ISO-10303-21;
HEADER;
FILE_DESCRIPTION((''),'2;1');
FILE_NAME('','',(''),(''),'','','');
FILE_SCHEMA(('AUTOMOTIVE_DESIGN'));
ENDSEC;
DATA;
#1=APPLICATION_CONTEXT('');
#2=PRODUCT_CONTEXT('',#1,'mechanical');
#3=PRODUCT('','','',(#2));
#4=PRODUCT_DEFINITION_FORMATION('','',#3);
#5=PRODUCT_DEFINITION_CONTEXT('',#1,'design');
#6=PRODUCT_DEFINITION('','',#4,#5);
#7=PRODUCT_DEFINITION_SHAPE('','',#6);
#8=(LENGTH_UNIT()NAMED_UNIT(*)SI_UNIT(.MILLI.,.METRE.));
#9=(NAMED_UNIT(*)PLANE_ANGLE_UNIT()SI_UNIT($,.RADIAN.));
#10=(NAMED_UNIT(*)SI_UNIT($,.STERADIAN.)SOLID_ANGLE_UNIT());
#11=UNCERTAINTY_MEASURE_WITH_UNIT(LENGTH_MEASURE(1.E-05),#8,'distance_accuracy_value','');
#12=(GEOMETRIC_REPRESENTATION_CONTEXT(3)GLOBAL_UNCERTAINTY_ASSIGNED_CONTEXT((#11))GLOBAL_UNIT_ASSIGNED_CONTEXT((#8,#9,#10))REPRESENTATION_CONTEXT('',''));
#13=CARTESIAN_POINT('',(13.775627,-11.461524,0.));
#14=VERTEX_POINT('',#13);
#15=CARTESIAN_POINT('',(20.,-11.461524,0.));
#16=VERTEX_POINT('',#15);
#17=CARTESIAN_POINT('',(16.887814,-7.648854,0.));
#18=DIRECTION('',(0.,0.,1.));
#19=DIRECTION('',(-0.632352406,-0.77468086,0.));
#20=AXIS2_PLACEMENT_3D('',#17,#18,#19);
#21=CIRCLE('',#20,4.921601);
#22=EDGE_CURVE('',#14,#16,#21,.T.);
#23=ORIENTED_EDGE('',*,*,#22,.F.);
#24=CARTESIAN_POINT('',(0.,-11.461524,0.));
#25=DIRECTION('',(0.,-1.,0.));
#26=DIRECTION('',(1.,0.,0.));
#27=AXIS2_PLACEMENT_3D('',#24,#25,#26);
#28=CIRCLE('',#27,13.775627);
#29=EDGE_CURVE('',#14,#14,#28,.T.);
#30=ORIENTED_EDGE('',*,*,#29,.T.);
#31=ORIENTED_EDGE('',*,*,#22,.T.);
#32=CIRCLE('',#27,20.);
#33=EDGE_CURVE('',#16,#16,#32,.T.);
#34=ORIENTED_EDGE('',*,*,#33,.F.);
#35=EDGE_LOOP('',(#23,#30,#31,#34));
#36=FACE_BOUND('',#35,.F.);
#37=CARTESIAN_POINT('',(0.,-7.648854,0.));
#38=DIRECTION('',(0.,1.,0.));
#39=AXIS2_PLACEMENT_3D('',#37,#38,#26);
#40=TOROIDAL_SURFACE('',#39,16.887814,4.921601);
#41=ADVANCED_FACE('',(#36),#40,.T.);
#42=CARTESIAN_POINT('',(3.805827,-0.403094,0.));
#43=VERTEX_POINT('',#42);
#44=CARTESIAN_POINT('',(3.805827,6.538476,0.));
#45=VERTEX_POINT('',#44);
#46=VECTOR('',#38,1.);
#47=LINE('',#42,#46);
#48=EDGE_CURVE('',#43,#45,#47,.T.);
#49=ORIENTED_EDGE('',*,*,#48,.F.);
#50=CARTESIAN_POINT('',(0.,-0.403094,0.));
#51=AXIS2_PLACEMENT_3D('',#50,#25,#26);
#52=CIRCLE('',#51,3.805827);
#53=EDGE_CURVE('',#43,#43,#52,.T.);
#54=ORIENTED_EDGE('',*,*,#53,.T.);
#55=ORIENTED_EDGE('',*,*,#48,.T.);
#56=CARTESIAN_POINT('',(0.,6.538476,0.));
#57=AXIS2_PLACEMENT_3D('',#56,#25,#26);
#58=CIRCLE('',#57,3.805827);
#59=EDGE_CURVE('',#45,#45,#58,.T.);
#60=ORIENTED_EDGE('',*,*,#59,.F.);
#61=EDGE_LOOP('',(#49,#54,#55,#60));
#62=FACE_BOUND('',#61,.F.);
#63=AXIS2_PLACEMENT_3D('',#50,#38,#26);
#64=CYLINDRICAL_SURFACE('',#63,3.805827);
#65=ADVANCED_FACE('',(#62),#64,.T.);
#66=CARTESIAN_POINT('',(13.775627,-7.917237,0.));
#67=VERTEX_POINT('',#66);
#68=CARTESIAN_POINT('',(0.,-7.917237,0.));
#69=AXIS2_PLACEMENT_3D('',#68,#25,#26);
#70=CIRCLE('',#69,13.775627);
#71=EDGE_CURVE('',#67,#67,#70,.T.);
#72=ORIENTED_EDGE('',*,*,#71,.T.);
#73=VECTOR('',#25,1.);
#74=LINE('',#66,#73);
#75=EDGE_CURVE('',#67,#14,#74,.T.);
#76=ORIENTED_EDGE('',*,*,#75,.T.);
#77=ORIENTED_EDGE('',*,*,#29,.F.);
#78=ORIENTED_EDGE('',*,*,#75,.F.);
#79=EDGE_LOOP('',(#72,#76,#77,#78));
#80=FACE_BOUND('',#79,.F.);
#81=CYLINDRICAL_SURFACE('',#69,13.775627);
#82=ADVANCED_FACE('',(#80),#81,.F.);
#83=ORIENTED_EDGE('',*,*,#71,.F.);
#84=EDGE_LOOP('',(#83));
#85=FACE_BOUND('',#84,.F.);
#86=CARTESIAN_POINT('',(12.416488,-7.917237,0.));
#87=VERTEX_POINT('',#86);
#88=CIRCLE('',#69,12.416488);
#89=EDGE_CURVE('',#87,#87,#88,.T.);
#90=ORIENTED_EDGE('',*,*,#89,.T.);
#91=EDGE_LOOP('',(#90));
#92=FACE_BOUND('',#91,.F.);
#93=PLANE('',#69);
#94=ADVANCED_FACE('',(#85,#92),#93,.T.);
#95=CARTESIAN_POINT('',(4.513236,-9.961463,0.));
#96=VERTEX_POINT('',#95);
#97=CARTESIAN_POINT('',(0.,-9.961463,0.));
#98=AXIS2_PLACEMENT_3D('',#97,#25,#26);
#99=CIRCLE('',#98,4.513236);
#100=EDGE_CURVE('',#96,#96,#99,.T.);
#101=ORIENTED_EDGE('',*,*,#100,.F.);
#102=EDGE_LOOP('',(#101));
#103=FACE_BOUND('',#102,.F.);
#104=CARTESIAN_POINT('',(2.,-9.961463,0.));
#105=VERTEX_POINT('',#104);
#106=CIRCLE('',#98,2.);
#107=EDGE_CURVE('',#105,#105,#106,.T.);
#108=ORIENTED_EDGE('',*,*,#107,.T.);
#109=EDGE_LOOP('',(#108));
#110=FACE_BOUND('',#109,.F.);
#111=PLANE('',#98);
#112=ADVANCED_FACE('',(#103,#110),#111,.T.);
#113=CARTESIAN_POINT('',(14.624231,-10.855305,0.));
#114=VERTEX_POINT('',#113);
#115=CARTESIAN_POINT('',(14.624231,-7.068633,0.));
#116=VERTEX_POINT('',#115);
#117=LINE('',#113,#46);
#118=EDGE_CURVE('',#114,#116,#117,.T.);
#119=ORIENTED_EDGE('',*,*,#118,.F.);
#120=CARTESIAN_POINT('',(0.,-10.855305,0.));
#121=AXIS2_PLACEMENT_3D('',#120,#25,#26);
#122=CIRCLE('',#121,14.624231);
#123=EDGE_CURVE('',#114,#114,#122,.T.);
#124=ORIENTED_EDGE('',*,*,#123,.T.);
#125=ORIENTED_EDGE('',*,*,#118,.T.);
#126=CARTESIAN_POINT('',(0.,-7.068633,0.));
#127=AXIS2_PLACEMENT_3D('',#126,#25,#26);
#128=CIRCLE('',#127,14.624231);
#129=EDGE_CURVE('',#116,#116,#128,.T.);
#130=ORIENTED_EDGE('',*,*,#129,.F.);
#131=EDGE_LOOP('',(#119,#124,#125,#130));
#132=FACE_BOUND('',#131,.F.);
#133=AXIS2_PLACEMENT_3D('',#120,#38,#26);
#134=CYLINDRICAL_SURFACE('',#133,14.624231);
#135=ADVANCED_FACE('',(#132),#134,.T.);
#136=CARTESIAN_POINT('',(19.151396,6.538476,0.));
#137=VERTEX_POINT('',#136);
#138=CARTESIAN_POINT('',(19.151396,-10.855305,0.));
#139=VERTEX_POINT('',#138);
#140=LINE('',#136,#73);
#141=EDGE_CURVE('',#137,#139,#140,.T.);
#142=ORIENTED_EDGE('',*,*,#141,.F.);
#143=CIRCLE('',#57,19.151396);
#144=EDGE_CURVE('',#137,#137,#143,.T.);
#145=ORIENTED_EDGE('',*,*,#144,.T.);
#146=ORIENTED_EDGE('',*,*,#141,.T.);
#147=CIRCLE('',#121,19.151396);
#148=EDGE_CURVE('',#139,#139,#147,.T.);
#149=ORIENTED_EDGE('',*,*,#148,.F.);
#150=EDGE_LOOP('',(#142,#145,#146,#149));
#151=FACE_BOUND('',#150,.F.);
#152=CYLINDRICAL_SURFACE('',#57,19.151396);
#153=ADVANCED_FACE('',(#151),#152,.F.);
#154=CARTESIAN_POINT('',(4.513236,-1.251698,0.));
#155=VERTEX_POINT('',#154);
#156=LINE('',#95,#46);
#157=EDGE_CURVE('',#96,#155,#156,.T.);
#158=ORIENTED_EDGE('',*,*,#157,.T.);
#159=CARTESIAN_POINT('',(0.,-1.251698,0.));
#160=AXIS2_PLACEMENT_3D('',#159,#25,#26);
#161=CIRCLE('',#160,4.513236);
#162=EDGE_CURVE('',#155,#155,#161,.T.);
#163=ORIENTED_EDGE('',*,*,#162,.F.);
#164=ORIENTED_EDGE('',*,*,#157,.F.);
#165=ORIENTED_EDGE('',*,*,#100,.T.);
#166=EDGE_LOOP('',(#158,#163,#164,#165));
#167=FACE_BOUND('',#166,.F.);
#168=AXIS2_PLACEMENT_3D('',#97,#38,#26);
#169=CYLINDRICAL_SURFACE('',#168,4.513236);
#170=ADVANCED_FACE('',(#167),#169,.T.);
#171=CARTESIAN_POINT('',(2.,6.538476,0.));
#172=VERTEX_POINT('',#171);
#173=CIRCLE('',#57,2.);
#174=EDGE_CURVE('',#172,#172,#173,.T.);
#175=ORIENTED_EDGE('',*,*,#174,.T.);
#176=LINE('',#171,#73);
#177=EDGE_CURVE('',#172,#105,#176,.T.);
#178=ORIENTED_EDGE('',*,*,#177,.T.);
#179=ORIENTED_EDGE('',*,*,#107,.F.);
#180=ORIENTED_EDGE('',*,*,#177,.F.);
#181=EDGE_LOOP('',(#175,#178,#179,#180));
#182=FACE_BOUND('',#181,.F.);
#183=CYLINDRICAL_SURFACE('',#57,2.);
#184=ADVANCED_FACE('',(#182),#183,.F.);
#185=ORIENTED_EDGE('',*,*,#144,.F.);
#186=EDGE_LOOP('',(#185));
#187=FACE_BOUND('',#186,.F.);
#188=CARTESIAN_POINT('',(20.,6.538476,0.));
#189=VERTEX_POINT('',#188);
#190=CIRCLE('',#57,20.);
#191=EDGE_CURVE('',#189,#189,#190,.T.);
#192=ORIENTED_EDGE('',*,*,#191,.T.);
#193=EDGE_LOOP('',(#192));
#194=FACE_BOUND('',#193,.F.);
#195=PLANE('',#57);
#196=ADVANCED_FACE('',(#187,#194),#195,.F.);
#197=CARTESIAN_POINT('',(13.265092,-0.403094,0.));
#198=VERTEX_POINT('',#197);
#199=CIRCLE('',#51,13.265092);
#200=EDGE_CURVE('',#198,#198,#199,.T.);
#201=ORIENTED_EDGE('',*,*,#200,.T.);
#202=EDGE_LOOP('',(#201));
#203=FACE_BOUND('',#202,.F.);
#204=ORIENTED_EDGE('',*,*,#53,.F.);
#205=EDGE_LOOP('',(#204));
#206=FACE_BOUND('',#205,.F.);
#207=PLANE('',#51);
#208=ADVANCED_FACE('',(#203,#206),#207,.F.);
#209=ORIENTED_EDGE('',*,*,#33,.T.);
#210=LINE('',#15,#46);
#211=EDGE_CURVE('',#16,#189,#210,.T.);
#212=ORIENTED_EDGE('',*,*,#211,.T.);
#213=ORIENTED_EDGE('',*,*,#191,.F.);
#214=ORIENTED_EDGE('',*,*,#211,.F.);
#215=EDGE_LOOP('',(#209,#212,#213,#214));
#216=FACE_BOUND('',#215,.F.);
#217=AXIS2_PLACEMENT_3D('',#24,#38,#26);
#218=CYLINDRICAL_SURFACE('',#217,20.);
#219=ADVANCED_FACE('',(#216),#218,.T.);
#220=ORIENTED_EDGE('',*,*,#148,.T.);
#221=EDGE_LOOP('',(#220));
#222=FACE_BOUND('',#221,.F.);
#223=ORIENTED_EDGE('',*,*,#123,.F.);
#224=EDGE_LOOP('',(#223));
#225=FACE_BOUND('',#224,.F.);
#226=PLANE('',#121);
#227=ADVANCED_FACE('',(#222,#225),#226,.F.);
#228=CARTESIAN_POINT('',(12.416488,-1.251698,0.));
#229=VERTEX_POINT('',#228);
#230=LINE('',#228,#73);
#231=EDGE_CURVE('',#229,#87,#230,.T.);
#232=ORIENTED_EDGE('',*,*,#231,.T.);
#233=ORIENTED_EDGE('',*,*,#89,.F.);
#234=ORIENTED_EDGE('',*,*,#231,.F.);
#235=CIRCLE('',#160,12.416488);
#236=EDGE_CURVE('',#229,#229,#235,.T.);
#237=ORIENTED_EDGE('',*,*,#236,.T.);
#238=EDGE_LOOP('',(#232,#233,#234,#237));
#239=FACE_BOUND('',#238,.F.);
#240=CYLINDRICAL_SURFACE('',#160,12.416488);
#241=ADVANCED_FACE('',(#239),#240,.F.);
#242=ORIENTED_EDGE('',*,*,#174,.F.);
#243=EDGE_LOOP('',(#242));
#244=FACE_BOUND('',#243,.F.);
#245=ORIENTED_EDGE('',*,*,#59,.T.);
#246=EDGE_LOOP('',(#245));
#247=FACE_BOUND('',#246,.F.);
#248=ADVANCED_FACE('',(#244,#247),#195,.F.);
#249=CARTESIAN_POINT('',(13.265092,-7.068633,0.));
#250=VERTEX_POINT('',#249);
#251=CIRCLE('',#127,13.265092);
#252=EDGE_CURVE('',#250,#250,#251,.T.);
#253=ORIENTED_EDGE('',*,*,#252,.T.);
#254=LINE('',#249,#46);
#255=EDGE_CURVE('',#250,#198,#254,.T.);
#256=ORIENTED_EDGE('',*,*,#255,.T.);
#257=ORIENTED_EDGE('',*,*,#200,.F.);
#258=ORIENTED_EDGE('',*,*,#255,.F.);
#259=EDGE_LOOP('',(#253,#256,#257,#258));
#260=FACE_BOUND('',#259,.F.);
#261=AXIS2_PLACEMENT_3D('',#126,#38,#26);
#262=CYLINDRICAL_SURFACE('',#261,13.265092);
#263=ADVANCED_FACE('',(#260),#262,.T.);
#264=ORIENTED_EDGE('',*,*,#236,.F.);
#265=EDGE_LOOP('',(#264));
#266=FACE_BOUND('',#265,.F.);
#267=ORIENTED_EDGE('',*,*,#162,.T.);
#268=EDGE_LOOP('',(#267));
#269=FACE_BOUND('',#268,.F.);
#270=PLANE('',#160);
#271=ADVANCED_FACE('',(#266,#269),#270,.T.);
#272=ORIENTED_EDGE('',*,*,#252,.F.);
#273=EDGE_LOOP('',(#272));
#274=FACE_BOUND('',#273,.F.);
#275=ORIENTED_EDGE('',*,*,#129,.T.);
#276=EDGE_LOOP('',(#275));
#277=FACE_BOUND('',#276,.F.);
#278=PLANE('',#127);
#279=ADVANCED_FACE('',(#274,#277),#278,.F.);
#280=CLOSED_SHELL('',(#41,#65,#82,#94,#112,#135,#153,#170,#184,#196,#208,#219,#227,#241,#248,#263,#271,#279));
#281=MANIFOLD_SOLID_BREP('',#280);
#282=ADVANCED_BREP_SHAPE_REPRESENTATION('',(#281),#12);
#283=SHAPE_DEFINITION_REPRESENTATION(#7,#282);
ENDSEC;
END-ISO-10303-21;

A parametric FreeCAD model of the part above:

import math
import FreeCAD as App
import Part
import Sketcher

doc = App.newDocument("Part")
params = doc.addObject("Spreadsheet::Sheet", "Params")
for row, (alias, value) in enumerate([
    ("sketch1_height", "18 mm"),
    ("revolution_angle", "360 deg"),
], start=1):
    params.set(f"A{row}", alias)
    params.set(f"B{row}", "=" + value)
    params.setAlias(f"B{row}", alias)

body = doc.addObject("PartDesign::Body", "Body")

# Sketch on XY plane
sketch1 = body.newObject("Sketcher::SketchObject", "Sketch")
sketch1.AttachmentSupport = (doc.getObject("XY_Plane"), [""])
sketch1.MapMode = "FlatFace"
sketch1.addGeometry([
    Part.LineSegment(App.Vector(3.8, 6.5, 0), App.Vector(2, 6.5, 0)),  # 0
    Part.LineSegment(App.Vector(2, 6.5, 0), App.Vector(2, -10, 0)),  # 1
    Part.LineSegment(App.Vector(2, -10, 0), App.Vector(4.5, -10, 0)),  # 2
    Part.LineSegment(App.Vector(4.5, -10, 0), App.Vector(4.5, -1.3, 0)),  # 3
    Part.LineSegment(App.Vector(4.5, -1.3, 0), App.Vector(12.4, -1.3, 0)),  # 4
    Part.LineSegment(App.Vector(12.4, -1.3, 0), App.Vector(12.4, -7.9, 0)),  # 5
    Part.LineSegment(App.Vector(12.4, -7.9, 0), App.Vector(13.8, -7.9, 0)),  # 6
    Part.LineSegment(App.Vector(13.8, -7.9, 0), App.Vector(13.8, -11.5, 0)),  # 7
    Part.ArcOfCircle(Part.Circle(App.Vector(16.9, -7.6, 0), App.Vector(0, 0, 1), 4.9), math.radians(-129), math.radians(-51)),  # 8
    Part.LineSegment(App.Vector(20, -11.5, 0), App.Vector(20, 6.5, 0)),  # 9
    Part.LineSegment(App.Vector(20, 6.5, 0), App.Vector(19.2, 6.5, 0)),  # 10
    Part.LineSegment(App.Vector(19.2, 6.5, 0), App.Vector(19.2, -10.9, 0)),  # 11
    Part.LineSegment(App.Vector(19.2, -10.9, 0), App.Vector(14.6, -10.9, 0)),  # 12
    Part.LineSegment(App.Vector(14.6, -10.9, 0), App.Vector(14.6, -7.1, 0)),  # 13
    Part.LineSegment(App.Vector(14.6, -7.1, 0), App.Vector(13.3, -7.1, 0)),  # 14
    Part.LineSegment(App.Vector(13.3, -7.1, 0), App.Vector(13.3, -0.4, 0)),  # 15
    Part.LineSegment(App.Vector(13.3, -0.4, 0), App.Vector(3.8, -0.4, 0)),  # 16
    Part.LineSegment(App.Vector(3.8, -0.4, 0), App.Vector(3.8, 6.5, 0)),  # 17
], False)
sketch1.addConstraint([
    Sketcher.Constraint("Coincident", 0, 2, 1, 1),
    Sketcher.Constraint("Coincident", 1, 2, 2, 1),
    Sketcher.Constraint("Coincident", 2, 2, 3, 1),
    Sketcher.Constraint("Coincident", 3, 2, 4, 1),
    Sketcher.Constraint("Coincident", 4, 2, 5, 1),
    Sketcher.Constraint("Coincident", 5, 2, 6, 1),
    Sketcher.Constraint("Coincident", 6, 2, 7, 1),
    Sketcher.Constraint("Coincident", 7, 2, 8, 1),
    Sketcher.Constraint("Coincident", 8, 2, 9, 1),
    Sketcher.Constraint("Coincident", 9, 2, 10, 1),
    Sketcher.Constraint("Coincident", 10, 2, 11, 1),
    Sketcher.Constraint("Coincident", 11, 2, 12, 1),
    Sketcher.Constraint("Coincident", 12, 2, 13, 1),
    Sketcher.Constraint("Coincident", 13, 2, 14, 1),
    Sketcher.Constraint("Coincident", 14, 2, 15, 1),
    Sketcher.Constraint("Coincident", 15, 2, 16, 1),
    Sketcher.Constraint("Coincident", 16, 2, 17, 1),
    Sketcher.Constraint("Coincident", 17, 2, 0, 1),
    Sketcher.Constraint("Horizontal", 0),
    Sketcher.Constraint("Vertical", 1),
    Sketcher.Constraint("Horizontal", 2),
    Sketcher.Constraint("Vertical", 3),
    Sketcher.Constraint("Horizontal", 4),
    Sketcher.Constraint("Vertical", 5),
    Sketcher.Constraint("Horizontal", 6),
    Sketcher.Constraint("Vertical", 7),
    Sketcher.Constraint("Vertical", 9),
    Sketcher.Constraint("Horizontal", 10),
    Sketcher.Constraint("Vertical", 11),
    Sketcher.Constraint("Horizontal", 12),
    Sketcher.Constraint("Vertical", 13),
    Sketcher.Constraint("Horizontal", 14),
    Sketcher.Constraint("Vertical", 15),
    Sketcher.Constraint("Horizontal", 16),
    Sketcher.Constraint("Vertical", 17),
    Sketcher.Constraint("Horizontal", 7, 2, 8, 2),
    Sketcher.Constraint("Horizontal", 0, 2, 9, 2),
    Sketcher.Constraint("Equal", 6, 14),
    Sketcher.Constraint("Equal", 5, 15),
    Sketcher.Constraint("DistanceY", 9, 1, 9, 2, 18.0),
    Sketcher.Constraint("DistanceX", -1, 1, 0, 2, 2.0),
    Sketcher.Constraint("DistanceX", -1, 1, 8, 2, 20.0),
    Sketcher.Constraint("Radius", 8, 4.921601),
    Sketcher.Constraint("DistanceX", 4, 1, 4, 2, 7.903252),
    Sketcher.Constraint("DistanceX", 6, 1, 6, 2, 1.359139),
    Sketcher.Constraint("DistanceY", 1, 2, 1, 1, 16.499939),
    Sketcher.Constraint("DistanceY", 5, 2, 5, 1, 6.665539),
    Sketcher.Constraint("DistanceY", 11, 2, 11, 1, 17.393781),
    Sketcher.Constraint("DistanceY", 13, 1, 13, 2, 3.786672),
    Sketcher.Constraint("DistanceX", 0, 2, 0, 1, 1.805827),
    Sketcher.Constraint("DistanceX", 2, 1, 2, 2, 2.513236),
    Sketcher.Constraint("DistanceX", 10, 2, 10, 1, 0.848604),
    Sketcher.Constraint("DistanceX", 12, 2, 12, 1, 4.527165),
    Sketcher.Constraint("DistanceY", 3, 1, 3, 2, 8.709765),
    Sketcher.Constraint("DistanceY", 8, 3, -1, 1, 7.648854),
])
sketch1.setExpression("Constraints[39]", "Params.sketch1_height")
revolution = body.newObject("PartDesign::Revolution", "Revolution")
revolution.Profile = sketch1
revolution.ReferenceAxis = (sketch1, ["V_Axis"])
revolution.setExpression("Angle", "Params.revolution_angle")

doc.recompute()
